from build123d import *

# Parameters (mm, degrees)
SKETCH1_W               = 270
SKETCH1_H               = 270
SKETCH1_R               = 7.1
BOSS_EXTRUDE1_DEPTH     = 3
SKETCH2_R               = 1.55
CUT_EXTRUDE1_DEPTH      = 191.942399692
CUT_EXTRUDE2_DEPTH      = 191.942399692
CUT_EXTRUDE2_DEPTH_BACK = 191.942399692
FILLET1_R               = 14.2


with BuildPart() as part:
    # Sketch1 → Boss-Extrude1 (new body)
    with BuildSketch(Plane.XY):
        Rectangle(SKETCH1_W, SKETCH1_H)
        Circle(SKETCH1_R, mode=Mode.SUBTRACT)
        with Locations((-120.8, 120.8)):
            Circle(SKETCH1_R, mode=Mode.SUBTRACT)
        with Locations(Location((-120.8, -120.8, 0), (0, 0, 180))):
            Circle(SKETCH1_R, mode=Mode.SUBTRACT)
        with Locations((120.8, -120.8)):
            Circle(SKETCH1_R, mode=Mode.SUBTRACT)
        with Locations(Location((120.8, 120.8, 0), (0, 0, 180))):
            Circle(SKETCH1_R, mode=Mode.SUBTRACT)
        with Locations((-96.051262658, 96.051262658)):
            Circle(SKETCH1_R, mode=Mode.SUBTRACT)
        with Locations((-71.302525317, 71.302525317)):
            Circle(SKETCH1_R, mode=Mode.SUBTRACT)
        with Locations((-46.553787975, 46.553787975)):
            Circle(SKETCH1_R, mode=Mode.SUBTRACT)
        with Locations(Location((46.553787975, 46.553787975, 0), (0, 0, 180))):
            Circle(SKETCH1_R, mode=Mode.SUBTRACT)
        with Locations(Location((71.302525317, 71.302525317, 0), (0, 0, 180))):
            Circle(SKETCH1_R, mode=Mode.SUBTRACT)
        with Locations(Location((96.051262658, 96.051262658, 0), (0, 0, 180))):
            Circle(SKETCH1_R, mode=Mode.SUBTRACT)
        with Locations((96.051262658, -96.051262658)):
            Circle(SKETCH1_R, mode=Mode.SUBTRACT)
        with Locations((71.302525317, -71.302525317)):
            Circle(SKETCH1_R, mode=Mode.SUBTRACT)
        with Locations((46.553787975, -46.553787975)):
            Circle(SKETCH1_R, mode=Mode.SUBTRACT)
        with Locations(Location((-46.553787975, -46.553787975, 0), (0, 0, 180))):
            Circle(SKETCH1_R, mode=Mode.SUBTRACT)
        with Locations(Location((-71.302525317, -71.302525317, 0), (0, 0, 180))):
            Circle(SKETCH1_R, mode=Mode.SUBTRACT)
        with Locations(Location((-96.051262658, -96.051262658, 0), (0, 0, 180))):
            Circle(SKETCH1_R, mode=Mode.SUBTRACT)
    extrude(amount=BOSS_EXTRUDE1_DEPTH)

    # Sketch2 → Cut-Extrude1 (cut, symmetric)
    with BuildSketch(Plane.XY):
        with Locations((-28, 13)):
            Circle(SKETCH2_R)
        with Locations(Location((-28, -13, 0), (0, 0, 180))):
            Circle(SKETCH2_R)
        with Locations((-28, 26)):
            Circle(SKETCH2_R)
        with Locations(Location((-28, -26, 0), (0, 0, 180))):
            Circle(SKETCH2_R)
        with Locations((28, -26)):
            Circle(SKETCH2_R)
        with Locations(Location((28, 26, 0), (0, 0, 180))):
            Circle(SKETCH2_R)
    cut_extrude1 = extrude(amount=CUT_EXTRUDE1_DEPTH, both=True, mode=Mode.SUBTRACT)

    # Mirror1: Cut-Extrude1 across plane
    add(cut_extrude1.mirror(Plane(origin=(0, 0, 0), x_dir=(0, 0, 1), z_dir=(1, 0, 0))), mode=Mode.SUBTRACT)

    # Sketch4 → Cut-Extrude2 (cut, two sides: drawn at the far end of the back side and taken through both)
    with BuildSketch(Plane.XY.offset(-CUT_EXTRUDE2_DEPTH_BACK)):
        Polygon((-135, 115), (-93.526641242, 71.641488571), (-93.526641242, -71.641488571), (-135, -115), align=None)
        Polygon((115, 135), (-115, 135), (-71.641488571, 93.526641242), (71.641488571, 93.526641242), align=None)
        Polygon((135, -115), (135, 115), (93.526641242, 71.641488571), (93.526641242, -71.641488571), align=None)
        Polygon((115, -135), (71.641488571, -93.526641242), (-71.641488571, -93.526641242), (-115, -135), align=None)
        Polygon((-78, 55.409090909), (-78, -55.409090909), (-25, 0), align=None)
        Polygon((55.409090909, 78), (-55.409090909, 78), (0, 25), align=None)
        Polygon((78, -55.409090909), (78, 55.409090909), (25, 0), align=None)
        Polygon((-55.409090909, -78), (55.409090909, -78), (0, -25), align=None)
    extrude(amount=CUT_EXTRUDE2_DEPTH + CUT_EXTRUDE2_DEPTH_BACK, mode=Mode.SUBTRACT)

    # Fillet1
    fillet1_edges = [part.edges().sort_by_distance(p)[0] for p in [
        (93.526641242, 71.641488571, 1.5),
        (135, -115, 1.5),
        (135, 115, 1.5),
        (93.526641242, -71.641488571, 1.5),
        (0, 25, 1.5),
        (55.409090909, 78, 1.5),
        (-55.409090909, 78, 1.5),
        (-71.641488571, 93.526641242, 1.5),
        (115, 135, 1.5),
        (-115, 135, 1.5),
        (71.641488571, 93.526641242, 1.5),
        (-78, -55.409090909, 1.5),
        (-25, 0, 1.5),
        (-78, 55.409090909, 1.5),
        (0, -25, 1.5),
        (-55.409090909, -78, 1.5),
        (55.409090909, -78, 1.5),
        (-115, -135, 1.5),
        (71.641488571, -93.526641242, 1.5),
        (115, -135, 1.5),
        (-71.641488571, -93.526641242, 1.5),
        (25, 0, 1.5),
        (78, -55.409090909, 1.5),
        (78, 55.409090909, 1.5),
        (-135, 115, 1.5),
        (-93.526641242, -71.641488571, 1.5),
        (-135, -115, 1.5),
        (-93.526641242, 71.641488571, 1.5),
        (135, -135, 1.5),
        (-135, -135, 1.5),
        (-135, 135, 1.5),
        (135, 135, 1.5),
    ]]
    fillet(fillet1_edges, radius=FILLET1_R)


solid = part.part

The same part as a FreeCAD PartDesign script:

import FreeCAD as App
import Part
import Sketcher


def edges_at(feature, points):
    """Names of the edges that pass closest to the given points."""
    edges = feature.Shape.Edges
    near = lambda p: min(range(len(edges)), key=lambda i: edges[i].distToShape(Part.Vertex(*p))[0])
    return sorted({f"Edge{near(p) + 1}" for p in points})

doc = App.newDocument("Part")
body = doc.addObject("PartDesign::Body", "Body")

# Sketch on XY plane
sketch1 = body.newObject("Sketcher::SketchObject", "Sketch")
sketch1.AttachmentSupport = (doc.getObject("XY_Plane"), [""])
sketch1.MapMode = "FlatFace"
sketch1.addGeometry(Part.LineSegment(App.Vector(-135, 135, 0), App.Vector(-135, -135, 0)), False)
sketch1.addGeometry(Part.LineSegment(App.Vector(-135, -135, 0), App.Vector(135, -135, 0)), False)
sketch1.addGeometry(Part.LineSegment(App.Vector(135, -135, 0), App.Vector(135, 135, 0)), False)
sketch1.addGeometry(Part.LineSegment(App.Vector(135, 135, 0), App.Vector(-135, 135, 0)), False)
sketch1.addGeometry(Part.Circle(App.Vector(-121, -121, 0), App.Vector(0, 0, 1), 7), False)
sketch1.addGeometry(Part.Circle(App.Vector(-96, -96, 0), App.Vector(0, 0, 1), 7), False)
sketch1.addGeometry(Part.Circle(App.Vector(-71, -71, 0), App.Vector(0, 0, 1), 7), False)
sketch1.addGeometry(Part.Circle(App.Vector(-47, -47, 0), App.Vector(0, 0, 1), 7), False)
sketch1.addGeometry(Part.Circle(App.Vector(121, -121, 0), App.Vector(0, 0, 1), 7), False)
sketch1.addGeometry(Part.Circle(App.Vector(96, -96, 0), App.Vector(0, 0, 1), 7), False)
sketch1.addGeometry(Part.Circle(App.Vector(71, -71, 0), App.Vector(0, 0, 1), 7), False)
sketch1.addGeometry(Part.Circle(App.Vector(47, -47, 0), App.Vector(0, 0, 1), 7), False)
sketch1.addGeometry(Part.Circle(App.Vector(-47, 47, 0), App.Vector(0, 0, 1), 7), False)
sketch1.addGeometry(Part.Circle(App.Vector(-71, 71, 0), App.Vector(0, 0, 1), 7), False)
sketch1.addGeometry(Part.Circle(App.Vector(-96, 96, 0), App.Vector(0, 0, 1), 7), False)
sketch1.addGeometry(Part.Circle(App.Vector(-121, 121, 0), App.Vector(0, 0, 1), 7), False)
sketch1.addGeometry(Part.Circle(App.Vector(0, 0, 0), App.Vector(0, 0, 1), 7), False)
sketch1.addGeometry(Part.Circle(App.Vector(47, 47, 0), App.Vector(0, 0, 1), 7), False)
sketch1.addGeometry(Part.Circle(App.Vector(71, 71, 0), App.Vector(0, 0, 1), 7), False)
sketch1.addGeometry(Part.Circle(App.Vector(96, 96, 0), App.Vector(0, 0, 1), 7), False)
sketch1.addGeometry(Part.Circle(App.Vector(121, 121, 0), App.Vector(0, 0, 1), 7), False)
sketch1.addConstraint(Sketcher.Constraint("Coincident", 0, 2, 1, 1))
sketch1.addConstraint(Sketcher.Constraint("Coincident", 1, 2, 2, 1))
sketch1.addConstraint(Sketcher.Constraint("Coincident", 2, 2, 3, 1))
sketch1.addConstraint(Sketcher.Constraint("Coincident", 3, 2, 0, 1))
sketch1.addConstraint(Sketcher.Constraint("Vertical", 0))
sketch1.addConstraint(Sketcher.Constraint("Horizontal", 1))
sketch1.addConstraint(Sketcher.Constraint("Vertical", 2))
sketch1.addConstraint(Sketcher.Constraint("Horizontal", 3))
sketch1.addConstraint(Sketcher.Constraint("Coincident", 16, 3, -1, 1))
sketch1.addConstraint(Sketcher.Constraint("Equal", 4, 5))
sketch1.addConstraint(Sketcher.Constraint("Equal", 5, 6))
sketch1.addConstraint(Sketcher.Constraint("Equal", 6, 7))
sketch1.addConstraint(Sketcher.Constraint("Equal", 7, 8))
sketch1.addConstraint(Sketcher.Constraint("Equal", 8, 9))
sketch1.addConstraint(Sketcher.Constraint("Equal", 9, 10))
sketch1.addConstraint(Sketcher.Constraint("Equal", 10, 11))
sketch1.addConstraint(Sketcher.Constraint("Equal", 11, 12))
sketch1.addConstraint(Sketcher.Constraint("Equal", 12, 13))
sketch1.addConstraint(Sketcher.Constraint("Equal", 13, 14))
sketch1.addConstraint(Sketcher.Constraint("Equal", 14, 15))
sketch1.addConstraint(Sketcher.Constraint("Equal", 15, 16))
sketch1.addConstraint(Sketcher.Constraint("Equal", 16, 17))
sketch1.addConstraint(Sketcher.Constraint("Equal", 17, 18))
sketch1.addConstraint(Sketcher.Constraint("Equal", 18, 19))
sketch1.addConstraint(Sketcher.Constraint("Equal", 19, 20))
sketch1.addConstraint(Sketcher.Constraint("Symmetric", 11, 3, 12, 3, -1, 1))
sketch1.addConstraint(Sketcher.Constraint("Symmetric", 10, 3, 13, 3, -1, 1))
sketch1.addConstraint(Sketcher.Constraint("Symmetric", 9, 3, 14, 3, -1, 1))
sketch1.addConstraint(Sketcher.Constraint("Symmetric", 8, 3, 15, 3, -1, 1))
sketch1.addConstraint(Sketcher.Constraint("Symmetric", 7, 3, 17, 3, -1, 1))
sketch1.addConstraint(Sketcher.Constraint("Symmetric", 6, 3, 18, 3, -1, 1))
sketch1.addConstraint(Sketcher.Constraint("Symmetric", 5, 3, 19, 3, -1, 1))
sketch1.addConstraint(Sketcher.Constraint("Symmetric", 4, 3, 20, 3, -1, 1))
sketch1.addConstraint(Sketcher.Constraint("Symmetric", 0, 2, 2, 2, -1, 1))
sketch1.addConstraint(Sketcher.Constraint("Symmetric", 4, 3, 8, 3, -2))
sketch1.addConstraint(Sketcher.Constraint("Symmetric", 5, 3, 9, 3, -2))
sketch1.addConstraint(Sketcher.Constraint("Symmetric", 6, 3, 10, 3, -2))
sketch1.addConstraint(Sketcher.Constraint("Symmetric", 7, 3, 11, 3, -2))
sketch1.addConstraint(Sketcher.Constraint("Equal", 3, 0))
sketch1.addConstraint(Sketcher.Constraint("Diameter", 4, 14.2))
sketch1.addConstraint(Sketcher.Constraint("DistanceX", 1, 1, 1, 2, 270.0))
sketch1.addConstraint(Sketcher.Constraint("DistanceX", 4, 3, -1, 1, 120.8))
sketch1.addConstraint(Sketcher.Constraint("DistanceY", 4, 3, -1, 1, 120.8))
sketch1.addConstraint(Sketcher.Constraint("DistanceX", 7, 3, 9, 3, 142.605051))
sketch1.addConstraint(Sketcher.Constraint("DistanceX", 6, 3, 10, 3, 142.605051))
sketch1.addConstraint(Sketcher.Constraint("DistanceY", 5, 3, 12, 3, 142.605051))
sketch1.addConstraint(Sketcher.Constraint("DistanceY", 6, 3, 13, 3, 142.605051))
sketch1.addConstraint(Sketcher.Constraint("DistanceX", 5, 3, -1, 1, 96.051263))
sketch1.addConstraint(Sketcher.Constraint("DistanceY", 5, 3, -1, 1, 96.051263))
pad1 = body.newObject("PartDesign::Pad", "Pad")
pad1.Profile = sketch1
pad1.Length = 3

# Sketch on XY plane
sketch2 = body.newObject("Sketcher::SketchObject", "Sketch001")
sketch2.AttachmentSupport = (doc.getObject("XY_Plane"), [""])
sketch2.MapMode = "FlatFace"
sketch2.addGeometry(Part.Circle(App.Vector(-28, 13, 0), App.Vector(0, 0, 1), 1.6), False)
sketch2.addGeometry(Part.Circle(App.Vector(-28, -13, 0), App.Vector(0, 0, 1), 1.6), False)
sketch2.addGeometry(Part.Circle(App.Vector(-28, 26, 0), App.Vector(0, 0, 1), 1.6), False)
sketch2.addGeometry(Part.Circle(App.Vector(-28, -26, 0), App.Vector(0, 0, 1), 1.6), False)
sketch2.addGeometry(Part.Circle(App.Vector(28, -26, 0), App.Vector(0, 0, 1), 1.6), False)
sketch2.addGeometry(Part.Circle(App.Vector(28, 26, 0), App.Vector(0, 0, 1), 1.6), False)
sketch2.addConstraint(Sketcher.Constraint("Equal", 0, 1))
sketch2.addConstraint(Sketcher.Constraint("Equal", 1, 2))
sketch2.addConstraint(Sketcher.Constraint("Equal", 2, 3))
sketch2.addConstraint(Sketcher.Constraint("Equal", 3, 4))
sketch2.addConstraint(Sketcher.Constraint("Equal", 4, 5))
sketch2.addConstraint(Sketcher.Constraint("Symmetric", 2, 3, 4, 3, -1, 1))
sketch2.addConstraint(Sketcher.Constraint("Symmetric", 3, 3, 5, 3, -1, 1))
sketch2.addConstraint(Sketcher.Constraint("Symmetric", 3, 3, 4, 3, -2))
sketch2.addConstraint(Sketcher.Constraint("Symmetric", 0, 3, 1, 3, -1))
sketch2.addConstraint(Sketcher.Constraint("Vertical", 1, 3, 2, 3))
sketch2.addConstraint(Sketcher.Constraint("Diameter", 0, 3.1))
sketch2.addConstraint(Sketcher.Constraint("DistanceX", 0, 3, -1, 1, 28.0))
sketch2.addConstraint(Sketcher.Constraint("DistanceY", -1, 1, 0, 3, 13.0))
sketch2.addConstraint(Sketcher.Constraint("DistanceY", -1, 1, 2, 3, 26.0))
pocket1 = body.newObject("PartDesign::Pocket", "Pocket")
pocket1.Profile = sketch2
pocket1.Length = 383.884799
pocket1.Midplane = True
doc.recompute()

mirrored = body.newObject("PartDesign::Mirrored", "Mirrored")
mirrored.Originals = [pocket1]
mirrored.MirrorPlane = (doc.getObject("YZ_Plane"), [""])
body.Tip = mirrored

# Sketch on XY plane
sketch3 = body.newObject("Sketcher::SketchObject", "Sketch002")
sketch3.AttachmentSupport = (doc.getObject("XY_Plane"), [""])
sketch3.MapMode = "FlatFace"
sketch3.addGeometry(Part.LineSegment(App.Vector(-94, 72, 0), App.Vector(-135, 115, 0)), False)
sketch3.addGeometry(Part.LineSegment(App.Vector(-135, 115, 0), App.Vector(-135, -115, 0)), False)
sketch3.addGeometry(Part.LineSegment(App.Vector(-135, -115, 0), App.Vector(-94, -72, 0)), False)
sketch3.addGeometry(Part.LineSegment(App.Vector(-94, -72, 0), App.Vector(-94, 72, 0)), False)
sketch3.addGeometry(Part.LineSegment(App.Vector(115, 135, 0), App.Vector(-115, 135, 0)), False)
sketch3.addGeometry(Part.LineSegment(App.Vector(-115, 135, 0), App.Vector(-72, 94, 0)), False)
sketch3.addGeometry(Part.LineSegment(App.Vector(-72, 94, 0), App.Vector(72, 94, 0)), False)
sketch3.addGeometry(Part.LineSegment(App.Vector(72, 94, 0), App.Vector(115, 135, 0)), False)
sketch3.addGeometry(Part.LineSegment(App.Vector(135, -115, 0), App.Vector(135, 115, 0)), False)
sketch3.addGeometry(Part.LineSegment(App.Vector(135, 115, 0), App.Vector(94, 72, 0)), False)
sketch3.addGeometry(Part.LineSegment(App.Vector(94, 72, 0), App.Vector(94, -72, 0)), False)
sketch3.addGeometry(Part.LineSegment(App.Vector(94, -72, 0), App.Vector(135, -115, 0)), False)
sketch3.addGeometry(Part.LineSegment(App.Vector(115, -135, 0), App.Vector(72, -94, 0)), False)
sketch3.addGeometry(Part.LineSegment(App.Vector(72, -94, 0), App.Vector(-72, -94, 0)), False)
sketch3.addGeometry(Part.LineSegment(App.Vector(-72, -94, 0), App.Vector(-115, -135, 0)), False)
sketch3.addGeometry(Part.LineSegment(App.Vector(-115, -135, 0), App.Vector(115, -135, 0)), False)
sketch3.addGeometry(Part.LineSegment(App.Vector(-78, 55, 0), App.Vector(-78, -55, 0)), False)
sketch3.addGeometry(Part.LineSegment(App.Vector(-78, -55, 0), App.Vector(-25, 0, 0)), False)
sketch3.addGeometry(Part.LineSegment(App.Vector(-25, 0, 0), App.Vector(-78, 55, 0)), False)
sketch3.addGeometry(Part.LineSegment(App.Vector(55, 78, 0), App.Vector(-55, 78, 0)), False)
sketch3.addGeometry(Part.LineSegment(App.Vector(-55, 78, 0), App.Vector(0, 25, 0)), False)
sketch3.addGeometry(Part.LineSegment(App.Vector(0, 25, 0), App.Vector(55, 78, 0)), False)
sketch3.addGeometry(Part.LineSegment(App.Vector(78, -55, 0), App.Vector(78, 55, 0)), False)
sketch3.addGeometry(Part.LineSegment(App.Vector(78, 55, 0), App.Vector(25, 0, 0)), False)
sketch3.addGeometry(Part.LineSegment(App.Vector(25, 0, 0), App.Vector(78, -55, 0)), False)
sketch3.addGeometry(Part.LineSegment(App.Vector(-55, -78, 0), App.Vector(55, -78, 0)), False)
sketch3.addGeometry(Part.LineSegment(App.Vector(55, -78, 0), App.Vector(0, -25, 0)), False)
sketch3.addGeometry(Part.LineSegment(App.Vector(0, -25, 0), App.Vector(-55, -78, 0)), False)
sketch3.addConstraint(Sketcher.Constraint("Coincident", 0, 2, 1, 1))
sketch3.addConstraint(Sketcher.Constraint("Coincident", 1, 2, 2, 1))
sketch3.addConstraint(Sketcher.Constraint("Coincident", 2, 2, 3, 1))
sketch3.addConstraint(Sketcher.Constraint("Coincident", 3, 2, 0, 1))
sketch3.addConstraint(Sketcher.Constraint("Coincident", 4, 2, 5, 1))
sketch3.addConstraint(Sketcher.Constraint("Coincident", 5, 2, 6, 1))
sketch3.addConstraint(Sketcher.Constraint("Coincident", 6, 2, 7, 1))
sketch3.addConstraint(Sketcher.Constraint("Coincident", 7, 2, 4, 1))
sketch3.addConstraint(Sketcher.Constraint("Coincident", 8, 2, 9, 1))
sketch3.addConstraint(Sketcher.Constraint("Coincident", 9, 2, 10, 1))
sketch3.addConstraint(Sketcher.Constraint("Coincident", 10, 2, 11, 1))
sketch3.addConstraint(Sketcher.Constraint("Coincident", 11, 2, 8, 1))
sketch3.addConstraint(Sketcher.Constraint("Coincident", 12, 2, 13, 1))
sketch3.addConstraint(Sketcher.Constraint("Coincident", 13, 2, 14, 1))
sketch3.addConstraint(Sketcher.Constraint("Coincident", 14, 2, 15, 1))
sketch3.addConstraint(Sketcher.Constraint("Coincident", 15, 2, 12, 1))
sketch3.addConstraint(Sketcher.Constraint("Coincident", 16, 2, 17, 1))
sketch3.addConstraint(Sketcher.Constraint("Coincident", 17, 2, 18, 1))
sketch3.addConstraint(Sketcher.Constraint("Coincident", 18, 2, 16, 1))
sketch3.addConstraint(Sketcher.Constraint("Coincident", 19, 2, 20, 1))
sketch3.addConstraint(Sketcher.Constraint("Coincident", 20, 2, 21, 1))
sketch3.addConstraint(Sketcher.Constraint("Coincident", 21, 2, 19, 1))
sketch3.addConstraint(Sketcher.Constraint("Coincident", 22, 2, 23, 1))
sketch3.addConstraint(Sketcher.Constraint("Coincident", 23, 2, 24, 1))
sketch3.addConstraint(Sketcher.Constraint("Coincident", 24, 2, 22, 1))
sketch3.addConstraint(Sketcher.Constraint("Coincident", 25, 2, 26, 1))
sketch3.addConstraint(Sketcher.Constraint("Coincident", 26, 2, 27, 1))
sketch3.addConstraint(Sketcher.Constraint("Coincident", 27, 2, 25, 1))
sketch3.addConstraint(Sketcher.Constraint("Vertical", 1))
sketch3.addConstraint(Sketcher.Constraint("Vertical", 3))
sketch3.addConstraint(Sketcher.Constraint("Horizontal", 4))
sketch3.addConstraint(Sketcher.Constraint("Horizontal", 6))
sketch3.addConstraint(Sketcher.Constraint("Vertical", 8))
sketch3.addConstraint(Sketcher.Constraint("Vertical", 10))
sketch3.addConstraint(Sketcher.Constraint("Horizontal", 13))
sketch3.addConstraint(Sketcher.Constraint("Horizontal", 15))
sketch3.addConstraint(Sketcher.Constraint("Vertical", 16))
sketch3.addConstraint(Sketcher.Constraint("Horizontal", 19))
sketch3.addConstraint(Sketcher.Constraint("Vertical", 22))
sketch3.addConstraint(Sketcher.Constraint("Horizontal", 25))
sketch3.addConstraint(Sketcher.Constraint("Symmetric", 1, 2, 8, 2, -1, 1))
sketch3.addConstraint(Sketcher.Constraint("Symmetric", 2, 2, 9, 2, -1, 1))
sketch3.addConstraint(Sketcher.Constraint("Symmetric", 5, 2, 12, 2, -1, 1))
sketch3.addConstraint(Sketcher.Constraint("Symmetric", 7, 2, 14, 2, -1, 1))
sketch3.addConstraint(Sketcher.Constraint("Symmetric", 16, 2, 22, 2, -1, 1))
sketch3.addConstraint(Sketcher.Constraint("Symmetric", 17, 2, 23, 2, -1, 1))
sketch3.addConstraint(Sketcher.Constraint("Symmetric", 19, 2, 25, 2, -1, 1))
sketch3.addConstraint(Sketcher.Constraint("Symmetric", 20, 2, 26, 2, -1, 1))
sketch3.addConstraint(Sketcher.Constraint("PointOnObject", 17, 2, -1))
sketch3.addConstraint(Sketcher.Constraint("PointOnObject", 20, 2, -2))
sketch3.addConstraint(Sketcher.Constraint("Perpendicular", 2, 5))
sketch3.addConstraint(Sketcher.Constraint("Perpendicular", 0, 7))
sketch3.addConstraint(Sketcher.Constraint("Perpendicular", 7, 11))
sketch3.addConstraint(Sketcher.Constraint("Perpendicular", 9, 12))
sketch3.addConstraint(Sketcher.Constraint("Perpendicular", 11, 14))
sketch3.addConstraint(Sketcher.Constraint("Perpendicular", 12, 17))
sketch3.addConstraint(Sketcher.Constraint("Perpendicular", 14, 18))
sketch3.addConstraint(Sketcher.Constraint("Perpendicular", 17, 20))
sketch3.addConstraint(Sketcher.Constraint("Perpendicular", 18, 21))
sketch3.addConstraint(Sketcher.Constraint("Perpendicular", 21, 24))
sketch3.addConstraint(Sketcher.Constraint("Perpendicular", 24, 27))
sketch3.addConstraint(Sketcher.Constraint("Horizontal", 0, 2, 8, 2))
sketch3.addConstraint(Sketcher.Constraint("Horizontal", 3, 2, 9, 2))
sketch3.addConstraint(Sketcher.Constraint("Horizontal", 2, 2, 10, 2))
sketch3.addConstraint(Sketcher.Constraint("Vertical", 6, 2, 12, 2))
sketch3.addConstraint(Sketcher.Constraint("Equal", 15, 1))
sketch3.addConstraint(Sketcher.Constraint("Equal", 13, 3))
sketch3.addConstraint(Sketcher.Constraint("Equal", 25, 16))
sketch3.addConstraint(Sketcher.Constraint("DistanceX", 4, 2, 4, 1, 230.0))
sketch3.addConstraint(Sketcher.Constraint("Distance", 0, 60.0))
sketch3.addConstraint(Sketcher.Constraint("DistanceX", 0, 2, -1, 1, 135.0))
sketch3.addConstraint(Sketcher.Constraint("DistanceY", -1, 1, 4, 2, 135.0))
sketch3.addConstraint(Sketcher.Constraint("DistanceX", 16, 2, -1, 1, 78.0))
sketch3.addConstraint(Sketcher.Constraint("DistanceX", 17, 2, -1, 1, 25.0))
sketch3.addConstraint(Sketcher.Constraint("DistanceY", -1, 1, 19, 2, 78.0))
sketch3.addConstraint(Sketcher.Constraint("DistanceX", 19, 2, 19, 1, 110.818182))
pocket2 = body.newObject("PartDesign::Pocket", "Pocket001")
pocket2.Profile = sketch3
pocket2.Type = "ThroughAll"
pocket2.Midplane = True
doc.recompute()

fillet = body.newObject("PartDesign::Fillet", "Fillet")
fillet.Base = (pocket2, edges_at(pocket2, [
    (93.527, 71.641, 1.5),
    (135, -115, 1.5),
    (135, 115, 1.5),
    (93.527, -71.641, 1.5),
    (0, 25, 1.5),
    (55.409, 78, 1.5),
    (-55.409, 78, 1.5),
    (-71.641, 93.527, 1.5),
    (115, 135, 1.5),
    (-115, 135, 1.5),
    (71.641, 93.527, 1.5),
    (-78, -55.409, 1.5),
    (-25, 0, 1.5),
    (-78, 55.409, 1.5),
    (0, -25, 1.5),
    (-55.409, -78, 1.5),
    (55.409, -78, 1.5),
    (-115, -135, 1.5),
    (71.641, -93.527, 1.5),
    (115, -135, 1.5),
    (-71.641, -93.527, 1.5),
    (25, 0, 1.5),
    (78, -55.409, 1.5),
    (78, 55.409, 1.5),
    (-135, 115, 1.5),
    (-93.527, -71.641, 1.5),
    (-135, -115, 1.5),
    (-93.527, 71.641, 1.5),
    (135, -135, 1.5),
    (-135, -135, 1.5),
    (-135, 135, 1.5),
    (135, 135, 1.5),
]))
fillet.Radius = 14.2

doc.recompute()
